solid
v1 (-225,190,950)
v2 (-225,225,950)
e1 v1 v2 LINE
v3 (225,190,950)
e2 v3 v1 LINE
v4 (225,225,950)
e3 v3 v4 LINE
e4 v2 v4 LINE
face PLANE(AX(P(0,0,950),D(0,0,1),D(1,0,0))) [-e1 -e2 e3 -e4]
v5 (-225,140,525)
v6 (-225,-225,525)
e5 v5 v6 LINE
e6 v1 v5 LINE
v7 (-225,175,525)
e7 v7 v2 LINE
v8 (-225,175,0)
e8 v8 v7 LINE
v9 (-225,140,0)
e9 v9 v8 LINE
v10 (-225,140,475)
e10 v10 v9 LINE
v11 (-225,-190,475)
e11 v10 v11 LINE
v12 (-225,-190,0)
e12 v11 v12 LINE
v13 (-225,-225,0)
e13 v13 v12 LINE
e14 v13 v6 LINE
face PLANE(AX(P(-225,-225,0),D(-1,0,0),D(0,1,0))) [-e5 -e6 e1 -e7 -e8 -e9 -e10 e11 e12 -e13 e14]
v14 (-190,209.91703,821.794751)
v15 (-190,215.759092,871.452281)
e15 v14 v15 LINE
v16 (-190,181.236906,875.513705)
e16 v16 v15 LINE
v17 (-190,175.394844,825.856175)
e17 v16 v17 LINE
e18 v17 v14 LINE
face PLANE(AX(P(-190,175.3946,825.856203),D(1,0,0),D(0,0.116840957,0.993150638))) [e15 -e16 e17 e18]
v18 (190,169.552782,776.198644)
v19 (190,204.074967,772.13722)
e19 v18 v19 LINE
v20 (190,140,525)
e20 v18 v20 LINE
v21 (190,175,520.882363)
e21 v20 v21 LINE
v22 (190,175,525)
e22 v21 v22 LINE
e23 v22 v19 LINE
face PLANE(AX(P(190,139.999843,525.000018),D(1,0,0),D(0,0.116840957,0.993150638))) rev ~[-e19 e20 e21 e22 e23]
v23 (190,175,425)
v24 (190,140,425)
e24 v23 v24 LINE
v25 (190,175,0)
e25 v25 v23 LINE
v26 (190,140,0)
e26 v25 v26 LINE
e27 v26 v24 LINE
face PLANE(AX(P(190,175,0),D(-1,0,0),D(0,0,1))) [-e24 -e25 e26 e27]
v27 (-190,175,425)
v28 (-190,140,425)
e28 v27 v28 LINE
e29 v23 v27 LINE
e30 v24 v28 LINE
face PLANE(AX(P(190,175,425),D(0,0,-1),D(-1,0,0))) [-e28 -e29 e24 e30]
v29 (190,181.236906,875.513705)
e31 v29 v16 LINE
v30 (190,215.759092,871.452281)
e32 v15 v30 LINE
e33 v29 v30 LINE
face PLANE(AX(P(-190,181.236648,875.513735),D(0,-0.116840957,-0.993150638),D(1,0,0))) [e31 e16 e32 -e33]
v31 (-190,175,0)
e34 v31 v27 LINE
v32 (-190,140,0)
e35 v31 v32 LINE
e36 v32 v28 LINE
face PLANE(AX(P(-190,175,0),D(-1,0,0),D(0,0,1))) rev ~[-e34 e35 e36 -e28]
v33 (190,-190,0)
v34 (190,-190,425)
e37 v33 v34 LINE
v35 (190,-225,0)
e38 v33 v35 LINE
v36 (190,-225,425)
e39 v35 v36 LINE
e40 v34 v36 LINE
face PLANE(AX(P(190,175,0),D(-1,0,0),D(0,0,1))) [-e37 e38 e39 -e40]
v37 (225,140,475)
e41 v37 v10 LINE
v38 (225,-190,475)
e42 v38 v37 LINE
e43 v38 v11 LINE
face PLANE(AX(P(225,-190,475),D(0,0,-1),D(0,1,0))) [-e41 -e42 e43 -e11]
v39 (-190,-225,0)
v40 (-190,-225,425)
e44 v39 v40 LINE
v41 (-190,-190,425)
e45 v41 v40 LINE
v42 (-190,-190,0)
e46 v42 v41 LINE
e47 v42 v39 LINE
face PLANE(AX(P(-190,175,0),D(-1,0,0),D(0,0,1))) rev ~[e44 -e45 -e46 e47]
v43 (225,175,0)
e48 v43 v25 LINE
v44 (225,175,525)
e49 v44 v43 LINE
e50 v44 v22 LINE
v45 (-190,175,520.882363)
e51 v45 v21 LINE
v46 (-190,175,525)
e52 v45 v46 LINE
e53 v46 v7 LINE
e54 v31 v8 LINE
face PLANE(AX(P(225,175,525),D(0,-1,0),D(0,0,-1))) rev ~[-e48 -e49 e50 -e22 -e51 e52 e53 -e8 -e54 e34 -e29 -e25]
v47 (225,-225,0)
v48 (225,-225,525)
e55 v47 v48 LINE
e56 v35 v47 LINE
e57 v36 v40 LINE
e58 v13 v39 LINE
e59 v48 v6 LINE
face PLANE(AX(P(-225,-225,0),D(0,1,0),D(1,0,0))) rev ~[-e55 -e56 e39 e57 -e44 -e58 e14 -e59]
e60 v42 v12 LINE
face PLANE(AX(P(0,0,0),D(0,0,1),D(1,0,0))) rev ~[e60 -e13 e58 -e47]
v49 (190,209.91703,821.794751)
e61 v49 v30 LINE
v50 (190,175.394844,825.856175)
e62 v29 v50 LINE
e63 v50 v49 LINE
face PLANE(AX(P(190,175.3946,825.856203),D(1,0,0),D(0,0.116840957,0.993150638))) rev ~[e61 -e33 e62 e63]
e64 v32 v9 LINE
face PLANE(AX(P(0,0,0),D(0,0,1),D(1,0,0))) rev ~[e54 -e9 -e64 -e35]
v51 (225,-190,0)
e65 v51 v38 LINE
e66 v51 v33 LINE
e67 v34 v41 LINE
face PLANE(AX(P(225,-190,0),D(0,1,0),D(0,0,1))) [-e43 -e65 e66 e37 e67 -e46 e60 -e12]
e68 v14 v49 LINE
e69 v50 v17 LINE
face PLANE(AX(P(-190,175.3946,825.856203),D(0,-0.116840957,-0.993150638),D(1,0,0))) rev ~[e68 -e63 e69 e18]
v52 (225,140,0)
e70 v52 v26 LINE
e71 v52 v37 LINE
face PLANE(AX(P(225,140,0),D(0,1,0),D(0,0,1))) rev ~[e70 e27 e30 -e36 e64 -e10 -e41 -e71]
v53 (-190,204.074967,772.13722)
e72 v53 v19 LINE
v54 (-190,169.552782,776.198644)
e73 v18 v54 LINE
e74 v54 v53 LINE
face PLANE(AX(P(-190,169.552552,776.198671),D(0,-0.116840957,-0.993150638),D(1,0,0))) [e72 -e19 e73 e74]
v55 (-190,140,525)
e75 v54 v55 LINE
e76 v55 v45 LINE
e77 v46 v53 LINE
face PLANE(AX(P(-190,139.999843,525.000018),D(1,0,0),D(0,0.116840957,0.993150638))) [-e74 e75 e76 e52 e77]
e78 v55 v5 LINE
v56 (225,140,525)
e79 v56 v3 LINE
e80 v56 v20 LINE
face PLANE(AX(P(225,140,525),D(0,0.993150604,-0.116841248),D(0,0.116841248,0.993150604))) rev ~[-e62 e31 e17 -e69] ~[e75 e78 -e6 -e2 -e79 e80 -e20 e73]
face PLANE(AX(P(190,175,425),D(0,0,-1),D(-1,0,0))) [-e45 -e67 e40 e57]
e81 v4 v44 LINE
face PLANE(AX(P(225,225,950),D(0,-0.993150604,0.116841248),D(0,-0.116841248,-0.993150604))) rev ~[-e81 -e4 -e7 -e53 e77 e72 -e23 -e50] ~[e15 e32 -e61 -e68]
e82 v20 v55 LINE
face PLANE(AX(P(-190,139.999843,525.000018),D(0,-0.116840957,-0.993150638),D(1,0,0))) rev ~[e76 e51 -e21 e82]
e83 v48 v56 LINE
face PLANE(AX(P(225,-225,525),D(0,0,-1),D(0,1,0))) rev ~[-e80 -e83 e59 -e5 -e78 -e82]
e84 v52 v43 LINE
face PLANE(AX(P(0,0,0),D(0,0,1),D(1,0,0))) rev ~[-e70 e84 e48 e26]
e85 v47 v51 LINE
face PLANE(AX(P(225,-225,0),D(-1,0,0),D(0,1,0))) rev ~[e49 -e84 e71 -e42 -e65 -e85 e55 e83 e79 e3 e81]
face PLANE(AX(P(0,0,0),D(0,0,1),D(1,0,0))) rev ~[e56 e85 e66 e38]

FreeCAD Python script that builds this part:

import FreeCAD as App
import Part
import Sketcher
from FreeCAD import Vector


def add_polygon(sketch, points):
    """Adds a closed chain of lines whose ends are joined by coincident constraints."""
    first, n = sketch.GeometryCount, len(points)
    for a, b in zip(points, points[1:] + points[:1]):
        sketch.addGeometry(Part.LineSegment(App.Vector(*a, 0), App.Vector(*b, 0)), False)
    for i in range(n):
        sketch.addConstraint(Sketcher.Constraint("Coincident", first + i, 2, first + (i + 1) % n, 1))

doc = App.newDocument("Part")
body = doc.addObject("PartDesign::Body", "Body")

sketch1 = body.newObject("Sketcher::SketchObject", "Sketch")
sketch1.AttachmentSupport = (doc.getObject("XY_Plane"), [""])
sketch1.MapMode = "FlatFace"
add_polygon(sketch1, [(-225, 225), (-225, -225), (225, -225), (225, 225)])
sketch1.addConstraint([
    Sketcher.Constraint("Vertical", 0),
    Sketcher.Constraint("Horizontal", 1),
    Sketcher.Constraint("Vertical", 2),
    Sketcher.Constraint("Horizontal", 3),
    Sketcher.Constraint("Symmetric", 0, 2, 2, 2, -1, 1),
    Sketcher.Constraint("Equal", 3, 0),
    Sketcher.Constraint("DistanceX", 1, 1, 1, 2, 450.0),
])
pad1 = body.newObject("PartDesign::Pad", "Pad")
pad1.Profile = sketch1
pad1.Length = 950

sketch2 = body.newObject("Sketcher::SketchObject", "Sketch001")
sketch2.AttachmentSupport = (doc.getObject("YZ_Plane"), [""])
sketch2.MapMode = "FlatFace"
sketch2.AttachmentOffset = App.Placement(Vector(0, 0, 225), App.Rotation())
add_polygon(sketch2, [(175, 525), (175, 0), (225, 0), (225, 950)])
add_polygon(sketch2, [(-190, 475), (-190, 0), (140, 0), (140, 475)])
add_polygon(sketch2, [(-225, 950), (-225, 525), (140, 525), (190, 950)])
sketch2.addConstraint([
    Sketcher.Constraint("Vertical", 0),
    Sketcher.Constraint("Horizontal", 1),
    Sketcher.Constraint("Vertical", 2),
    Sketcher.Constraint("Vertical", 4),
    Sketcher.Constraint("Horizontal", 5),
    Sketcher.Constraint("Vertical", 6),
    Sketcher.Constraint("Horizontal", 7),
    Sketcher.Constraint("Vertical", 8),
    Sketcher.Constraint("Horizontal", 9),
    Sketcher.Constraint("Horizontal", 11),
    Sketcher.Constraint("Symmetric", 2, 2, 11, 2, -2),
    Sketcher.Constraint("PointOnObject", 0, 2, -1),
    Sketcher.Constraint("PointOnObject", 4, 2, -1),
    Sketcher.Constraint("Parallel", 3, 10),
    Sketcher.Constraint("Horizontal", 3, 2, 8, 2),
    Sketcher.Constraint("Vertical", 6, 2, 9, 2),
    Sketcher.Constraint("DistanceX", 1, 1, 1, 2, 50.0),
    Sketcher.Constraint("DistanceX", 5, 1, 5, 2, 330.0),
    Sketcher.Constraint("DistanceX", 9, 1, 9, 2, 365.0),
    Sketcher.Constraint("DistanceY", 0, 2, 0, 1, 525.0),
    Sketcher.Constraint("DistanceY", 2, 1, 2, 2, 950.0),
    Sketcher.Constraint("DistanceY", 4, 2, 4, 1, 475.0),
    Sketcher.Constraint("DistanceX", -1, 1, 0, 2, 175.0),
])
pocket1 = body.newObject("PartDesign::Pocket", "Pocket")
pocket1.Profile = sketch2
pocket1.Type = "ThroughAll"

sketch3 = body.newObject("Sketcher::SketchObject", "Sketch002")
sketch3.AttachmentSupport = (doc.getObject("XZ_Plane"), [""])
sketch3.MapMode = "FlatFace"
sketch3.AttachmentOffset = App.Placement(Vector(0, 0, -175), App.Rotation())
add_polygon(sketch3, [(190, 425), (190, 0), (-190, 0), (-190, 425)])
sketch3.addConstraint([
    Sketcher.Constraint("Vertical", 0),
    Sketcher.Constraint("Horizontal", 1),
    Sketcher.Constraint("Vertical", 2),
    Sketcher.Constraint("Horizontal", 3),
    Sketcher.Constraint("Symmetric", 0, 2, 1, 2, -1, 1),
    Sketcher.Constraint("DistanceX", 1, 2, 1, 1, 380.0),
    Sketcher.Constraint("DistanceY", 0, 2, 0, 1, 425.0),
])
pocket2 = body.newObject("PartDesign::Pocket", "Pocket001")
pocket2.Profile = sketch3
pocket2.Type = "ThroughAll"
pocket2.Reversed = True

sketch4 = body.newObject("Sketcher::SketchObject", "Sketch003")
sketch4.Placement = App.Placement(Vector(0, 77.167235, -9.078498), App.Rotation(Vector(1, 0, 0), Vector(0, 0.116840957, 0.993150638), Vector(0, -0.993150638, 0.116840957), "ZXY"))
add_polygon(sketch4, [(-190, 891), (-190, 841), (190, 841), (190, 891)])
add_polygon(sketch4, [(-190, 791), (-190, 538), (190, 538), (190, 791)])
sketch4.addConstraint([
    Sketcher.Constraint("Vertical", 0),
    Sketcher.Constraint("Horizontal", 1),
    Sketcher.Constraint("Vertical", 2),
    Sketcher.Constraint("Horizontal", 3),
    Sketcher.Constraint("Vertical", 4),
    Sketcher.Constraint("Horizontal", 5),
    Sketcher.Constraint("Vertical", 6),
    Sketcher.Constraint("Horizontal", 7),
    Sketcher.Constraint("Vertical", 3, 2, 4, 2),
    Sketcher.Constraint("Vertical", 2, 2, 5, 2),
    Sketcher.Constraint("DistanceX", 1, 1, 1, 2, 380.0),
    Sketcher.Constraint("DistanceY", 0, 2, 0, 1, 50.0),
    Sketcher.Constraint("DistanceX", 0, 2, -1, 1, 190.0),
    Sketcher.Constraint("DistanceY", 6, 2, 1, 2, 50.0),
    Sketcher.Constraint("DistanceY", 4, 2, 4, 1, 252.931069),
    Sketcher.Constraint("DistanceY", -1, 1, 0, 2, 840.69291),
])
pocket3 = body.newObject("PartDesign::Pocket", "Pocket002")
pocket3.Profile = sketch4
pocket3.Type = "ThroughAll"

doc.recompute()
